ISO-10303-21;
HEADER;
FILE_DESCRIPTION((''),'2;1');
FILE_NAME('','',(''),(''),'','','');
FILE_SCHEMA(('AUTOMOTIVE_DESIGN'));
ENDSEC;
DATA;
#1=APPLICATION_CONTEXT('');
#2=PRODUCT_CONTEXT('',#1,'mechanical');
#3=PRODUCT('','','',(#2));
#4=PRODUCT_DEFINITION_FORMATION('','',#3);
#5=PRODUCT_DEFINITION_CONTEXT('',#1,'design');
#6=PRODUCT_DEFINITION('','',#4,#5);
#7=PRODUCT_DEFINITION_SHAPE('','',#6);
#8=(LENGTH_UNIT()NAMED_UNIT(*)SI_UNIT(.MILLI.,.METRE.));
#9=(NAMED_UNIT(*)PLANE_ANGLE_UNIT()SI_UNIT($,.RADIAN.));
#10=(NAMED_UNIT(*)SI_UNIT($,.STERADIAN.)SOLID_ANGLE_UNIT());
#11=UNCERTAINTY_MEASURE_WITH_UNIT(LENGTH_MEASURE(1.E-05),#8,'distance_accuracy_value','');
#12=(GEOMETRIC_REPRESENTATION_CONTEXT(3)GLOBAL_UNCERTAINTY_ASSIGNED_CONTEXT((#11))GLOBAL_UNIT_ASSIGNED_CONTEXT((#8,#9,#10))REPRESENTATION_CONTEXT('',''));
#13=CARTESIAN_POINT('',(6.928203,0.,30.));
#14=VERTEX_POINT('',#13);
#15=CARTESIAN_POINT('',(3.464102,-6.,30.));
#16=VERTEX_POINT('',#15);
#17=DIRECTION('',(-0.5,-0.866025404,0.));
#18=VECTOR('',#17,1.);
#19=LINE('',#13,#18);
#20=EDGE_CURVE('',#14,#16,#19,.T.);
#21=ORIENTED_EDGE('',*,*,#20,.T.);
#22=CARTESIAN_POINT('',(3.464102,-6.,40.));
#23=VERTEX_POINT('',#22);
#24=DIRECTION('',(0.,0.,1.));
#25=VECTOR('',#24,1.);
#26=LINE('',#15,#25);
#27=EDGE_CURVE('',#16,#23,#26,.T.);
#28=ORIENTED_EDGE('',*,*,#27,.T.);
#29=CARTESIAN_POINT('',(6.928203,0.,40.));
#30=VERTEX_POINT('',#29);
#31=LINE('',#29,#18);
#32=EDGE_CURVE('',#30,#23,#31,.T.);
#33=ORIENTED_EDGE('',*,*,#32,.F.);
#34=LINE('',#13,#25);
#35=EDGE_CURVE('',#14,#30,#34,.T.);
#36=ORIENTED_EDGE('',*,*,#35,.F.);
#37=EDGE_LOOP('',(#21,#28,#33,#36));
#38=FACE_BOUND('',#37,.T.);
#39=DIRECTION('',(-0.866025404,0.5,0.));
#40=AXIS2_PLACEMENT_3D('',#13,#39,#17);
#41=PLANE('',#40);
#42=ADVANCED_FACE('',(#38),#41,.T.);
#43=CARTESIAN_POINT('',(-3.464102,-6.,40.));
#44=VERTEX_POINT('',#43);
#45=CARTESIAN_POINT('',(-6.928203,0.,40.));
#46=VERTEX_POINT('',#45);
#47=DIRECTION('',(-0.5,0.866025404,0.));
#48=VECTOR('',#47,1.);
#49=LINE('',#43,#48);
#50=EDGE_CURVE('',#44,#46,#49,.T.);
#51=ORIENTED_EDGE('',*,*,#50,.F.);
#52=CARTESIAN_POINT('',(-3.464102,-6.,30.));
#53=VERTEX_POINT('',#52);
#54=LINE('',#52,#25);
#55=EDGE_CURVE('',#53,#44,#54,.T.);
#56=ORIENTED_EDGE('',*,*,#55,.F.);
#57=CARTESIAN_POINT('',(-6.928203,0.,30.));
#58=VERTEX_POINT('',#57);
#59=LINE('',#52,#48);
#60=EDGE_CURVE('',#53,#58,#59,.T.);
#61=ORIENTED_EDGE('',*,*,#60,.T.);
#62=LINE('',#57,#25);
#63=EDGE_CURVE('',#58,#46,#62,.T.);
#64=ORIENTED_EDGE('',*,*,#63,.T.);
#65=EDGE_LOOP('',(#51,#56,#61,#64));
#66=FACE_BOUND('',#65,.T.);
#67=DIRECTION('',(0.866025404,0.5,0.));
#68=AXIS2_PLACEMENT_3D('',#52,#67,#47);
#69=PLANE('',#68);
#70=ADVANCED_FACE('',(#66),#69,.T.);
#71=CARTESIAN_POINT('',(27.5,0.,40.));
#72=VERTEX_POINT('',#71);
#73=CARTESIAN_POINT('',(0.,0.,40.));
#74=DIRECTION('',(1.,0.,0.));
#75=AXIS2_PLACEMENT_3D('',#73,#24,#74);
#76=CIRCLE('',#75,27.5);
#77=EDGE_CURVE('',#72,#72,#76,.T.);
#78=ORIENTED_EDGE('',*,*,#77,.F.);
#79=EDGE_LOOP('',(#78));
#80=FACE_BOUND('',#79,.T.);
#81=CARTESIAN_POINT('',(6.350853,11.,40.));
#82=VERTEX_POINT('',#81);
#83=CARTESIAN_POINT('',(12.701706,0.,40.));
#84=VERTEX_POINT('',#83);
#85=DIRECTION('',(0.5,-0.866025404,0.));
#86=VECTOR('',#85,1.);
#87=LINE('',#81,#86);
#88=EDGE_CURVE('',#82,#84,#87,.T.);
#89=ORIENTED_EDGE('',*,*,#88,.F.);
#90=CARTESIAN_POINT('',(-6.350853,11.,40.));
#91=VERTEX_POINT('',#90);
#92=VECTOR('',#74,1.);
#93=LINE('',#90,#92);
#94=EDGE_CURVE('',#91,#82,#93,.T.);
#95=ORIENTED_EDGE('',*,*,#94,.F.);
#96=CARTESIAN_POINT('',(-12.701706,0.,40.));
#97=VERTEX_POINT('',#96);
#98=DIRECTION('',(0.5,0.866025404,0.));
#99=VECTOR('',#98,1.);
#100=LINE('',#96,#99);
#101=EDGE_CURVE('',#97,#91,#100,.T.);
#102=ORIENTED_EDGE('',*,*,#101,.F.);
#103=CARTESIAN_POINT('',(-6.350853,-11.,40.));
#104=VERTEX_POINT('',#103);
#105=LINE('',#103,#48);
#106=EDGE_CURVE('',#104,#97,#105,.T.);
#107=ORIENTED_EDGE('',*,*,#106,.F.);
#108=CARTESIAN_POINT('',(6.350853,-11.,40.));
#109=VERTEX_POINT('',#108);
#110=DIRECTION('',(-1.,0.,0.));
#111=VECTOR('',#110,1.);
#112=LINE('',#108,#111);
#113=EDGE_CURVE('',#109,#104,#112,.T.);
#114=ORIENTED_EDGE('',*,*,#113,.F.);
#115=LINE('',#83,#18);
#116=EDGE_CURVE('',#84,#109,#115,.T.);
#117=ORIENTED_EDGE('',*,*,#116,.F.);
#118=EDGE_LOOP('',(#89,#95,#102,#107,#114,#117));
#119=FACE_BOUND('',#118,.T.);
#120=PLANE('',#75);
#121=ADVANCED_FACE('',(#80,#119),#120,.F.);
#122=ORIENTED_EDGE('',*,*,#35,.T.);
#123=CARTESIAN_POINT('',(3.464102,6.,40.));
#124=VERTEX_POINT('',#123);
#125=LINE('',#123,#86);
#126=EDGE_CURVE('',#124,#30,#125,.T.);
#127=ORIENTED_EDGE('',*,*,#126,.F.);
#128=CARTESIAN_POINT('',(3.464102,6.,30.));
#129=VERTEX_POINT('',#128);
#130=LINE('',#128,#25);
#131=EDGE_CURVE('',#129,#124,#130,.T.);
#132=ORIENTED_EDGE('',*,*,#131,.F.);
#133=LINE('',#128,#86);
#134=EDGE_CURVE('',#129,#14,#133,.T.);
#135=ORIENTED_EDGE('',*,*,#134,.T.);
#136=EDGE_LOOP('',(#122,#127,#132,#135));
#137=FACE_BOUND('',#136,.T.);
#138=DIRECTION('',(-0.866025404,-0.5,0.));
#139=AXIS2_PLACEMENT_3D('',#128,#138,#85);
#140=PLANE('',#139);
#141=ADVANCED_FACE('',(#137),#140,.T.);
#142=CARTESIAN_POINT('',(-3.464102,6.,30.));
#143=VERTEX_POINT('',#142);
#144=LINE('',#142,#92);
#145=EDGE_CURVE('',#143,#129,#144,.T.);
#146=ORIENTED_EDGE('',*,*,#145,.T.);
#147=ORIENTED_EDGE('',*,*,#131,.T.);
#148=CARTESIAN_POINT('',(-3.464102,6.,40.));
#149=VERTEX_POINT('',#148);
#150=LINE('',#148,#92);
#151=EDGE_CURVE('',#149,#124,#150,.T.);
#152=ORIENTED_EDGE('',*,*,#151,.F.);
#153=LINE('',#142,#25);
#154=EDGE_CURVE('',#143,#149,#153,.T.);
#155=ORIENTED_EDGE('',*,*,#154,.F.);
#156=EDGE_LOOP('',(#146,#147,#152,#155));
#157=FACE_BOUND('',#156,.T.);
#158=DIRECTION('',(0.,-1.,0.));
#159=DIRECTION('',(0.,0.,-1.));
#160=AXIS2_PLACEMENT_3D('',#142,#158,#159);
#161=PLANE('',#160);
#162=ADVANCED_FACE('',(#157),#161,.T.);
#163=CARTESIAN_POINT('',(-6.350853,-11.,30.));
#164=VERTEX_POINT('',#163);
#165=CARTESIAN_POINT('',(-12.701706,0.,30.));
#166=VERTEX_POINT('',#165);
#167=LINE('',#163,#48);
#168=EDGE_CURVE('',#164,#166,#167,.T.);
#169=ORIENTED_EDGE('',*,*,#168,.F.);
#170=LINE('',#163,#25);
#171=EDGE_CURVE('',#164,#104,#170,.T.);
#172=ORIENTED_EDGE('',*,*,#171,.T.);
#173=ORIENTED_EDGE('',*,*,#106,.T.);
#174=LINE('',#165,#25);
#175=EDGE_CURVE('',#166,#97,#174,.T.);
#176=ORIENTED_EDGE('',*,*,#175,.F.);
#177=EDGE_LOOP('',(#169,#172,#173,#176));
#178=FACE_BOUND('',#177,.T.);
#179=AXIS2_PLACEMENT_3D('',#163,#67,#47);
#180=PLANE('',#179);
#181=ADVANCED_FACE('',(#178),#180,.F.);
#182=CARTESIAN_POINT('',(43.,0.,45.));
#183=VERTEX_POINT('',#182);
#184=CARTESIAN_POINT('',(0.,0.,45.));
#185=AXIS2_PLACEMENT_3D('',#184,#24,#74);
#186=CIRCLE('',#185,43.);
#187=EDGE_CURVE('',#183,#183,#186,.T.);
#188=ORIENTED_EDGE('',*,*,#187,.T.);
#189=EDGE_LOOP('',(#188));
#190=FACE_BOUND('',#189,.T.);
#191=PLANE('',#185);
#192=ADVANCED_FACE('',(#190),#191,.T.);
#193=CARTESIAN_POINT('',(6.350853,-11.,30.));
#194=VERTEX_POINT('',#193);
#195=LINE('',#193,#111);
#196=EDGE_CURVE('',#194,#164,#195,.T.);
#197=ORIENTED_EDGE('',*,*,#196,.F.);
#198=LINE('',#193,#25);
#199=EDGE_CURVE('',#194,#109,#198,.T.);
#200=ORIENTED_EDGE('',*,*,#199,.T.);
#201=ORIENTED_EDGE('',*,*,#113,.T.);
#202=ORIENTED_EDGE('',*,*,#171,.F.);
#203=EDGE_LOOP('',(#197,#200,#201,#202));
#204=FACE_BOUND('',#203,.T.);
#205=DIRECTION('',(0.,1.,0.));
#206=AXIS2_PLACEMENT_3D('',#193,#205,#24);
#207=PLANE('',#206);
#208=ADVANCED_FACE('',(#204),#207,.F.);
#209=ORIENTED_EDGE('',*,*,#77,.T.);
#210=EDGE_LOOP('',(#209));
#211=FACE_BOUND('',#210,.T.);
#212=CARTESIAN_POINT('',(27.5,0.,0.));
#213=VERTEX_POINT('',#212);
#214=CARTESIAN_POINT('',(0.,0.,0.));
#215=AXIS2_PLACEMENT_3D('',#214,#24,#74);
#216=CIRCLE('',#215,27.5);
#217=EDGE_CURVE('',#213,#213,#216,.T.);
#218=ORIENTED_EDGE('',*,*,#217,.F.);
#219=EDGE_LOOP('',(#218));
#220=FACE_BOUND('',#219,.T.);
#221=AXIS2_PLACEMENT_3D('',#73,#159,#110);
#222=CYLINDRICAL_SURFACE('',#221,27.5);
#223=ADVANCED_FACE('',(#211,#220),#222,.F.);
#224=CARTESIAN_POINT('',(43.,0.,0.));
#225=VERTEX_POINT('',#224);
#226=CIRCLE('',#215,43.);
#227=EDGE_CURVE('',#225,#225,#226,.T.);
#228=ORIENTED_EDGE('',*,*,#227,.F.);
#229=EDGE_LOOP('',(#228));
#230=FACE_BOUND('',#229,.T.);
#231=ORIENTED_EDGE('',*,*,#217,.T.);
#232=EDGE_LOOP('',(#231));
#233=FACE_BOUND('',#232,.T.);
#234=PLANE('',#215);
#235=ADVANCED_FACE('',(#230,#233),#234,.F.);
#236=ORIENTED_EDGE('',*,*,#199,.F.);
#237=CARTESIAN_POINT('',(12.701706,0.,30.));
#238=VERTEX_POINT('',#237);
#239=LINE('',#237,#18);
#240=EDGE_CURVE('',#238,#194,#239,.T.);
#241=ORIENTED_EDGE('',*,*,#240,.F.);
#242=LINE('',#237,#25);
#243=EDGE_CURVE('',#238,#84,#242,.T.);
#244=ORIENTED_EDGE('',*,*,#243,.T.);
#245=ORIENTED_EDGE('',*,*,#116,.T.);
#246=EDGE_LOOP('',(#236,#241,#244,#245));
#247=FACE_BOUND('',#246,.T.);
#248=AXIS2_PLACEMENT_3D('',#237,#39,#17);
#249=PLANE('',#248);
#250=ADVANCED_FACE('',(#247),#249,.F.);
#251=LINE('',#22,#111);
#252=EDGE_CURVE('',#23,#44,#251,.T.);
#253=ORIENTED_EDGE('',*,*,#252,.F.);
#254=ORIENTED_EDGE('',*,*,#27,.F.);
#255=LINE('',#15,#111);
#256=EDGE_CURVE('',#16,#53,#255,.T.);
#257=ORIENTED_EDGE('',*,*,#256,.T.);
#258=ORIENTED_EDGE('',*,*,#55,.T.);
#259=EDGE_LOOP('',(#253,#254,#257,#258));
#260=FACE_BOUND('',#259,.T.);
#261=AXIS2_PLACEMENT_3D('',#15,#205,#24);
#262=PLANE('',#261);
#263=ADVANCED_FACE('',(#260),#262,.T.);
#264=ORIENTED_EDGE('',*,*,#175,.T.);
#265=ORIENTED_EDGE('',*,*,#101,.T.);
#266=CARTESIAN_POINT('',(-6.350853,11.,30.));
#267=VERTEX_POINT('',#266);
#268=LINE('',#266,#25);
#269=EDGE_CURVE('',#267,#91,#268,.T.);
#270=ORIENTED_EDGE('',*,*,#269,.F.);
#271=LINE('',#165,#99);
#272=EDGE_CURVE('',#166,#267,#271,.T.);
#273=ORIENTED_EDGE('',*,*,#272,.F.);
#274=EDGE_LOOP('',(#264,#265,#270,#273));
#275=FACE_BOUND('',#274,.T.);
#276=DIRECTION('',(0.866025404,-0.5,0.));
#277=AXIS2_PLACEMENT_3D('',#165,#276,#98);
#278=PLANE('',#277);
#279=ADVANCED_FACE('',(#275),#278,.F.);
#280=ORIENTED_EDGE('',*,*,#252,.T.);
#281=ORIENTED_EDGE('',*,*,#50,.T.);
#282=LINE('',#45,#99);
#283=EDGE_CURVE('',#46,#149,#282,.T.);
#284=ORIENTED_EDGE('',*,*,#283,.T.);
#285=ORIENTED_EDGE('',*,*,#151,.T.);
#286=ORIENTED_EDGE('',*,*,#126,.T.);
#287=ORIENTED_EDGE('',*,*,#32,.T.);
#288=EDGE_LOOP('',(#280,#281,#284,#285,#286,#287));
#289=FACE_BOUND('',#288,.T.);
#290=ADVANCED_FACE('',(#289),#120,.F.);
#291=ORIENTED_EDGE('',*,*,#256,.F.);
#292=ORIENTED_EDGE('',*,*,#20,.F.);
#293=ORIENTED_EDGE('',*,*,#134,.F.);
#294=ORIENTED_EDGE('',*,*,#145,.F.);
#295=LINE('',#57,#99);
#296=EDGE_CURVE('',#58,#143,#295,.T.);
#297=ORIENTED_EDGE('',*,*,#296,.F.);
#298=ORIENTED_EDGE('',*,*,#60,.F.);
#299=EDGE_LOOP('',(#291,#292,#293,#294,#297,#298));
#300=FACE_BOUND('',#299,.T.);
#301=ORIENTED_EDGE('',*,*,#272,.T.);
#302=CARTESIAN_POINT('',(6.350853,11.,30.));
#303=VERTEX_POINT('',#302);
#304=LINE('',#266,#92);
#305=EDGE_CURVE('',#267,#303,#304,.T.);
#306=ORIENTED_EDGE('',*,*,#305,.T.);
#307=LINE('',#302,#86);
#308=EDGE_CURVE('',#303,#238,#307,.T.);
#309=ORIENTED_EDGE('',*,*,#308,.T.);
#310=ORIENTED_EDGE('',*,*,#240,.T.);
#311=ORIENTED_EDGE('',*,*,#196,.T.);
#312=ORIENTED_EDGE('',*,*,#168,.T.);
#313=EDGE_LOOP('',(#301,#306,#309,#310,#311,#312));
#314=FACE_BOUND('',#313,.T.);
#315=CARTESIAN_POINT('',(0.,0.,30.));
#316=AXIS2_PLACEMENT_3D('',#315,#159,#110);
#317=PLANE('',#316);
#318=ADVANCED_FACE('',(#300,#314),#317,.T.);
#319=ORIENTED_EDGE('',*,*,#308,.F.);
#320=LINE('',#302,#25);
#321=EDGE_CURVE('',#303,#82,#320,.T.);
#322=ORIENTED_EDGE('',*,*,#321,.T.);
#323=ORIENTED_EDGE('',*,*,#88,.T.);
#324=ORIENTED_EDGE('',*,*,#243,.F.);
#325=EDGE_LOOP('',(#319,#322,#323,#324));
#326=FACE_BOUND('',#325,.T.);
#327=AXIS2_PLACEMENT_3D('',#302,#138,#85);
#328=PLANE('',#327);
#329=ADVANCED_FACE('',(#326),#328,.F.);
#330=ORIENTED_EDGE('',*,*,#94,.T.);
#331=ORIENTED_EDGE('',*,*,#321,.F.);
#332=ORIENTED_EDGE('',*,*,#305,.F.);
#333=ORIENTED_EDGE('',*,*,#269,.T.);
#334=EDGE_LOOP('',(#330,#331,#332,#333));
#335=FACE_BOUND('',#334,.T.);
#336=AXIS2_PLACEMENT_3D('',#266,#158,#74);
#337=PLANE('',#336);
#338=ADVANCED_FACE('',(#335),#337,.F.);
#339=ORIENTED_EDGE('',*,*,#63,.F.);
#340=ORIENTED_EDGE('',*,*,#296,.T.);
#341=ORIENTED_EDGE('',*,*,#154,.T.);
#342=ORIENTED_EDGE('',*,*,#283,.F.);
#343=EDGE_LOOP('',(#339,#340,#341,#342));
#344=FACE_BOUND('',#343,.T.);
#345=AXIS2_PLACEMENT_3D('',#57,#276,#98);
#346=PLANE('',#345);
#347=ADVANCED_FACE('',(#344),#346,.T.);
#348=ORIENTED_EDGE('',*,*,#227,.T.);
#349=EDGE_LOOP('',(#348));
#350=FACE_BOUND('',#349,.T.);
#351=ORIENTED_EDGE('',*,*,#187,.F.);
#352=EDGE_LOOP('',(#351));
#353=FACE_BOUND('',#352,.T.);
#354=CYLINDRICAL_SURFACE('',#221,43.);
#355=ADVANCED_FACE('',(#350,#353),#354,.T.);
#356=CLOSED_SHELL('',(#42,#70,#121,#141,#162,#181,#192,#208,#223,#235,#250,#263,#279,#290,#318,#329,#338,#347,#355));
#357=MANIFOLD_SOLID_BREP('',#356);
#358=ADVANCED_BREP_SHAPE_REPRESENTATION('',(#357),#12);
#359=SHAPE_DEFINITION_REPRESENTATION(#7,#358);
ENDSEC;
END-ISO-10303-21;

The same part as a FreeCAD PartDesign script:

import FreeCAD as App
import Part
import Sketcher

V = App.Vector
Q = App.Units.Quantity


def add_polygon(sketch, points):
    """Adds a closed chain of lines whose ends are joined by coincident constraints."""
    first, n = sketch.GeometryCount, len(points)
    for a, b in zip(points, points[1:] + points[:1]):
        sketch.addGeometry(Part.LineSegment(App.Vector(*a, 0), App.Vector(*b, 0)), False)
    for i in range(n):
        sketch.addConstraint(Sketcher.Constraint("Coincident", first + i, 2, first + (i + 1) % n, 1))

doc = App.newDocument("Part")
params = doc.addObject("Spreadsheet::Sheet", "Params")
for row, (alias, value) in enumerate([
    ("sketch1_diameter", "86 mm"),
    ("sketch1_diameter2", "55 mm"),
    ("pad1_length", "40 mm"),
    ("sketch2_diameter", "86 mm"),
    ("pad2_length", "5 mm"),
    ("pad3_length", "10 mm"),
], start=1):
    params.set(f"A{row}", alias)
    params.set(f"B{row}", "=" + value)
    params.setAlias(f"B{row}", alias)

body = doc.addObject("PartDesign::Body", "Body")

# Sketch on XY plane
sketch1 = body.newObject("Sketcher::SketchObject", "Sketch")
sketch1.AttachmentSupport = (doc.getObject("XY_Plane"), [""])
sketch1.MapMode = "FlatFace"
sketch1.addGeometry(Part.Circle(V(0, 0, 0), V(0, 0, 1), 43), False)
sketch1.addGeometry(Part.Circle(V(0, 0, 0), V(0, 0, 1), 28), False)
sketch1.addConstraint(Sketcher.Constraint("Coincident", 0, 3, -1, 1))
sketch1.addConstraint(Sketcher.Constraint("Coincident", 1, 3, -1, 1))
sketch1.addConstraint(Sketcher.Constraint("Diameter", 0, 86.0))
sketch1.addConstraint(Sketcher.Constraint("Diameter", 1, 55.0))
sketch1.setExpression("Constraints[2]", "Params.sketch1_diameter")
sketch1.setExpression("Constraints[3]", "Params.sketch1_diameter2")
pad1 = body.newObject("PartDesign::Pad", "Pad")
pad1.Profile = sketch1
pad1.setExpression("Length", "Params.pad1_length")

# Sketch on XY plane
sketch2 = body.newObject("Sketcher::SketchObject", "Sketch001")
sketch2.AttachmentSupport = (doc.getObject("XY_Plane"), [""])
sketch2.MapMode = "FlatFace"
sketch2.AttachmentOffset = App.Placement(V(0, 0, 40), App.Rotation())
sketch2.addGeometry(Part.Circle(V(0, 0, 0), V(0, 0, 1), 43), False)
sketch2.addConstraint(Sketcher.Constraint("Coincident", 0, 3, -1, 1))
sketch2.addConstraint(Sketcher.Constraint("Diameter", 0, 86.0))
sketch2.setExpression("Constraints[1]", "Params.sketch2_diameter")
pad2 = body.newObject("PartDesign::Pad", "Pad001")
pad2.Profile = sketch2
pad2.setExpression("Length", "Params.pad2_length")

# Sketch on XY plane
sketch3 = body.newObject("Sketcher::SketchObject", "Sketch002")
sketch3.AttachmentSupport = (doc.getObject("XY_Plane"), [""])
sketch3.MapMode = "FlatFace"
sketch3.AttachmentOffset = App.Placement(V(0, 0, 40), App.Rotation())
add_polygon(sketch3, [(-6, 11), (6, 11), (13, 0), (6, -11), (-6, -11), (-13, 0)])  # lines 0-5
add_polygon(sketch3, [(3, 6), (-3, 6), (-7, 0), (-3, -6), (3, -6), (7, 0)])  # lines 6-11
sketch3.addConstraint(Sketcher.Constraint("Horizontal", 0))
sketch3.addConstraint(Sketcher.Constraint("Horizontal", 3))
sketch3.addConstraint(Sketcher.Constraint("Horizontal", 6))
sketch3.addConstraint(Sketcher.Constraint("Horizontal", 9))
sketch3.addConstraint(Sketcher.Constraint("Symmetric", 0, 2, 3, 2, -1, 1))
sketch3.addConstraint(Sketcher.Constraint("Symmetric", 1, 2, 4, 2, -1, 1))
sketch3.addConstraint(Sketcher.Constraint("Symmetric", 6, 2, 9, 2, -1, 1))
sketch3.addConstraint(Sketcher.Constraint("Symmetric", 7, 2, 10, 2, -1, 1))
sketch3.addConstraint(Sketcher.Constraint("PointOnObject", 1, 2, -1))
sketch3.addConstraint(Sketcher.Constraint("PointOnObject", 7, 2, -1))
sketch3.addConstraint(Sketcher.Constraint("Parallel", 2, 5))
sketch3.addConstraint(Sketcher.Constraint("Parallel", 5, 7))
sketch3.addConstraint(Sketcher.Constraint("Parallel", 4, 8))
sketch3.addConstraint(Sketcher.Constraint("Parallel", 8, 11))
sketch3.addConstraint(Sketcher.Constraint("Vertical", 0, 2, 2, 2))
sketch3.addConstraint(Sketcher.Constraint("Angle", 1, Q("-60 deg")))
sketch3.addConstraint(Sketcher.Constraint("DistanceY", -1, 1, 0, 2, 11.0))
sketch3.addConstraint(Sketcher.Constraint("DistanceY", -1, 1, 6, 2, 6.0))
sketch3.addConstraint(Sketcher.Constraint("DistanceX", 6, 2, -1, 1, 3.464102))
sketch3.addConstraint(Sketcher.Constraint("DistanceX", 0, 1, 0, 2, 12.701706))
pad3 = body.newObject("PartDesign::Pad", "Pad002")
pad3.Profile = sketch3
pad3.setExpression("Length", "Params.pad3_length")
pad3.Reversed = True

doc.recompute()
